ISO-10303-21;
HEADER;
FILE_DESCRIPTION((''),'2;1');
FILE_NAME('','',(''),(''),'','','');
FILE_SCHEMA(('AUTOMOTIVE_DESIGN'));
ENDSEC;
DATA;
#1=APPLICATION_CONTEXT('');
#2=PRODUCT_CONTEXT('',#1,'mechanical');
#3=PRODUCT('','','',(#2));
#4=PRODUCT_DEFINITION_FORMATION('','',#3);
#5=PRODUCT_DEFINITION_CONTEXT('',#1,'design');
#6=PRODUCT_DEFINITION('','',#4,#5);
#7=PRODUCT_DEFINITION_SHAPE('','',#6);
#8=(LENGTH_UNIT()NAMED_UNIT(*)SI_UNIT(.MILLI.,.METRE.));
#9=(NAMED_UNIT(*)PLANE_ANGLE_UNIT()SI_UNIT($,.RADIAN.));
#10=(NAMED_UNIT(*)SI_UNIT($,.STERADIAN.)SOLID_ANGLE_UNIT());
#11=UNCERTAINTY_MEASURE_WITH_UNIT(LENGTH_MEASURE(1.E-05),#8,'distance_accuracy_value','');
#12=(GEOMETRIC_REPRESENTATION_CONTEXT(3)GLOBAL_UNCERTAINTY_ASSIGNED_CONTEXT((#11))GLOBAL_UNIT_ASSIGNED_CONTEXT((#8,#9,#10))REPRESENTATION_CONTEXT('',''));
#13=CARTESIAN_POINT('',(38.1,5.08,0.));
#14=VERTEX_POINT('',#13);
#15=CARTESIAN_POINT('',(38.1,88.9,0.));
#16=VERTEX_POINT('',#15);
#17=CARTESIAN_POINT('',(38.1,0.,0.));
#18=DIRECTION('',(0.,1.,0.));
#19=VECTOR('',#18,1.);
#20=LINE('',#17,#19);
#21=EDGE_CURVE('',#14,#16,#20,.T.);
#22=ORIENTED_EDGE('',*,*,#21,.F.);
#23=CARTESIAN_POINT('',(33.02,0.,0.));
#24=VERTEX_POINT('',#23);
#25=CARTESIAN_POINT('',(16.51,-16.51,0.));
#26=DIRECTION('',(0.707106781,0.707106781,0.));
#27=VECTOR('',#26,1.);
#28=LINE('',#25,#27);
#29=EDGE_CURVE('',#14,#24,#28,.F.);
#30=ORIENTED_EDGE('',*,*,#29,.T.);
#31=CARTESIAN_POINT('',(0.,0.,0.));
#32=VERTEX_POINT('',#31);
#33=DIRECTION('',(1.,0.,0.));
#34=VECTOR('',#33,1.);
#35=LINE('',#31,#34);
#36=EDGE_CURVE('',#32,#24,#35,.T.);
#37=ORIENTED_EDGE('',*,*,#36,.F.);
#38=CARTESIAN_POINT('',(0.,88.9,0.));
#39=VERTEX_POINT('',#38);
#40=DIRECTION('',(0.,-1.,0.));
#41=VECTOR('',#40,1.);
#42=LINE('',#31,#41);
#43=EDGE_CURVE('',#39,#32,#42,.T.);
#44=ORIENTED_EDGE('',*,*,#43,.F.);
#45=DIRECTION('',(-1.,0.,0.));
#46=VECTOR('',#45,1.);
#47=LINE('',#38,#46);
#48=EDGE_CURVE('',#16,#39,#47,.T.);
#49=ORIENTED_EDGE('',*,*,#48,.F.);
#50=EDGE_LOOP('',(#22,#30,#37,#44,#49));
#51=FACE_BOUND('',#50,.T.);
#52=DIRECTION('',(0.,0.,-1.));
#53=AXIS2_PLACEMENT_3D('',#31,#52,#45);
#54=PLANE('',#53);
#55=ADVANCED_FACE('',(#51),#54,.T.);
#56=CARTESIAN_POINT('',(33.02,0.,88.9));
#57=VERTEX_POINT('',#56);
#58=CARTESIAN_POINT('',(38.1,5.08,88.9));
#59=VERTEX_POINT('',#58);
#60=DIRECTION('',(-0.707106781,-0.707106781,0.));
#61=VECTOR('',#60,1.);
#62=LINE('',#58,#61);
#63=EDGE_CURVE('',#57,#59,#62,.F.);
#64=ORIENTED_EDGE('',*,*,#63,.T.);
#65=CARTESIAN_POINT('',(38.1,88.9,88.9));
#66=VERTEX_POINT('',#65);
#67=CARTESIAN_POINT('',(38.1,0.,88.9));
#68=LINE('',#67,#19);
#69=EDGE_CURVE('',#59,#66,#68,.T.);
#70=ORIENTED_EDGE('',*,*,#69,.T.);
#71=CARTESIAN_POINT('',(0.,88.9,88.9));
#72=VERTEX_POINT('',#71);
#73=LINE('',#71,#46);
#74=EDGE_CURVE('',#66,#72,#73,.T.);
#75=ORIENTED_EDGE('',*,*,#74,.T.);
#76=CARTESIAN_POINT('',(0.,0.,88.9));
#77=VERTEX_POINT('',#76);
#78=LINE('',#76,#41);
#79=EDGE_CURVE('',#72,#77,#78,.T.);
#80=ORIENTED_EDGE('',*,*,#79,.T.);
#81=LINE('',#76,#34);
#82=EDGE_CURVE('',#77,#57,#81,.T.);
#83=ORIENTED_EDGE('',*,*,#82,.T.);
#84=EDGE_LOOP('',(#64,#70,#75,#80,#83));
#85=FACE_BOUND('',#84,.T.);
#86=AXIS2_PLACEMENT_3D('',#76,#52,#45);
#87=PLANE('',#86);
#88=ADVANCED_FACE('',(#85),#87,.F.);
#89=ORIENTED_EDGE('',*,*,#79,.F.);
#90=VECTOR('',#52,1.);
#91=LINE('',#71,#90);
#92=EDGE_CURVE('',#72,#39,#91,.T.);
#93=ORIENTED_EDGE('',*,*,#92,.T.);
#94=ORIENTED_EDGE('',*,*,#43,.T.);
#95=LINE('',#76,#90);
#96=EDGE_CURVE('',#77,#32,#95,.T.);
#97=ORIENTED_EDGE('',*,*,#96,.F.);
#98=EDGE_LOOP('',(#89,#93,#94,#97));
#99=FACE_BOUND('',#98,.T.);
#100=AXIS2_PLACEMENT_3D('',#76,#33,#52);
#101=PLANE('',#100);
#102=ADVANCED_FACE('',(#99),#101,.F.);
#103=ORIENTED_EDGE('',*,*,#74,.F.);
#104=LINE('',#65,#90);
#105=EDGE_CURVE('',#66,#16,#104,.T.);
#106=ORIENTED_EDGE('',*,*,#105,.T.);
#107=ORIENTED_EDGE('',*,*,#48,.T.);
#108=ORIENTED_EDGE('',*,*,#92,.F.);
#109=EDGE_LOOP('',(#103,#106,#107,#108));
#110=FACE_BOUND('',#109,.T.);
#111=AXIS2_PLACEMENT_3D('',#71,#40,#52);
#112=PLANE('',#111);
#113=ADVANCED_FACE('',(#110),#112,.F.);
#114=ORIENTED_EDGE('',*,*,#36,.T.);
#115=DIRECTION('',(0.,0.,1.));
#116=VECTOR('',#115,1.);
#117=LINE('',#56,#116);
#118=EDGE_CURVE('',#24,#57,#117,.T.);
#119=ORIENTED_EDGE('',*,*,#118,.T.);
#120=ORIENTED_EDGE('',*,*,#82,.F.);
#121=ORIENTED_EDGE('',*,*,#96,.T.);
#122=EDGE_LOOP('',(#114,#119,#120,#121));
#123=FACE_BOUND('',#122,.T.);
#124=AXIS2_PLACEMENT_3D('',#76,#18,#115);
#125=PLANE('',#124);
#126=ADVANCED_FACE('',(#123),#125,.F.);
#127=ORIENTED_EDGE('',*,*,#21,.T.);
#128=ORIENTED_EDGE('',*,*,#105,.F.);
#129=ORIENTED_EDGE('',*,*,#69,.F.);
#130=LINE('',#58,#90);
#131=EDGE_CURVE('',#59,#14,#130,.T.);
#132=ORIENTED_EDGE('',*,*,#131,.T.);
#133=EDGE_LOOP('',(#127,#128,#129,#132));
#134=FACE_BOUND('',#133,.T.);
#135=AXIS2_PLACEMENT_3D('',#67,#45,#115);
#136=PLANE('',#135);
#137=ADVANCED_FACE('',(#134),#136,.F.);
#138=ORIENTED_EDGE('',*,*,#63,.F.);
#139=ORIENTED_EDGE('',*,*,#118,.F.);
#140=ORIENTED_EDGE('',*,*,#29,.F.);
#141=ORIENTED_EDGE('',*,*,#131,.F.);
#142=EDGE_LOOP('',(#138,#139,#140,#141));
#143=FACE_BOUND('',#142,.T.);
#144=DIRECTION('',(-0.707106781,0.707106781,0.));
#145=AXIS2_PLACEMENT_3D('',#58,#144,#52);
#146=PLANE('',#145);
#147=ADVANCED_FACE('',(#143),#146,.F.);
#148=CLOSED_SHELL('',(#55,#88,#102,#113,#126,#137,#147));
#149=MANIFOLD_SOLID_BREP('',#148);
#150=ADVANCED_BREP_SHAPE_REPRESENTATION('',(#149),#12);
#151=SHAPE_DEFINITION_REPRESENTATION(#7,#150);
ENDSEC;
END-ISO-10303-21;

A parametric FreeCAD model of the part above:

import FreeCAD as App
import Part
import Sketcher

V = App.Vector
Q = App.Units.Quantity


def edges_at(feature, points):
    """Names of the edges that pass closest to the given points."""
    edges = feature.Shape.Edges
    near = lambda p: min(range(len(edges)), key=lambda i: edges[i].distToShape(Part.Vertex(*p))[0])
    return sorted({f"Edge{near(p) + 1}" for p in points})


def add_polygon(sketch, points):
    """Adds a closed chain of lines whose ends are joined by coincident constraints."""
    first, n = sketch.GeometryCount, len(points)
    for a, b in zip(points, points[1:] + points[:1]):
        sketch.addGeometry(Part.LineSegment(App.Vector(*a, 0), App.Vector(*b, 0)), False)
    for i in range(n):
        sketch.addConstraint(Sketcher.Constraint("Coincident", first + i, 2, first + (i + 1) % n, 1))

doc = App.newDocument("Part")
body = doc.addObject("PartDesign::Body", "Body")

# Sketch on XY plane
sketch1 = body.newObject("Sketcher::SketchObject", "Sketch")
sketch1.AttachmentSupport = (doc.getObject("XY_Plane"), [""])
sketch1.MapMode = "FlatFace"
add_polygon(sketch1, [(0, 89), (0, 0), (38, 0), (38, 89)])  # lines 0-3
sketch1.addConstraint(Sketcher.Constraint("Vertical", 0))
sketch1.addConstraint(Sketcher.Constraint("Horizontal", 1))
sketch1.addConstraint(Sketcher.Constraint("Vertical", 2))
sketch1.addConstraint(Sketcher.Constraint("Horizontal", 3))
sketch1.addConstraint(Sketcher.Constraint("Coincident", 0, 2, -1, 1))
sketch1.addConstraint(Sketcher.Constraint("DistanceX", 1, 1, 1, 2, Q("1.5 in")))
sketch1.addConstraint(Sketcher.Constraint("DistanceY", 0, 2, 0, 1, Q("3.5 in")))
pad1 = body.newObject("PartDesign::Pad", "Pad")
pad1.Profile = sketch1
pad1.Length = Q("3.5 in")
doc.recompute()

chamfer = body.newObject("PartDesign::Chamfer", "Chamfer")
chamfer.Base = (pad1, edges_at(pad1, [(38.1, 0, 44.45)]))
chamfer.Size = Q("0.2 in")

doc.recompute()
